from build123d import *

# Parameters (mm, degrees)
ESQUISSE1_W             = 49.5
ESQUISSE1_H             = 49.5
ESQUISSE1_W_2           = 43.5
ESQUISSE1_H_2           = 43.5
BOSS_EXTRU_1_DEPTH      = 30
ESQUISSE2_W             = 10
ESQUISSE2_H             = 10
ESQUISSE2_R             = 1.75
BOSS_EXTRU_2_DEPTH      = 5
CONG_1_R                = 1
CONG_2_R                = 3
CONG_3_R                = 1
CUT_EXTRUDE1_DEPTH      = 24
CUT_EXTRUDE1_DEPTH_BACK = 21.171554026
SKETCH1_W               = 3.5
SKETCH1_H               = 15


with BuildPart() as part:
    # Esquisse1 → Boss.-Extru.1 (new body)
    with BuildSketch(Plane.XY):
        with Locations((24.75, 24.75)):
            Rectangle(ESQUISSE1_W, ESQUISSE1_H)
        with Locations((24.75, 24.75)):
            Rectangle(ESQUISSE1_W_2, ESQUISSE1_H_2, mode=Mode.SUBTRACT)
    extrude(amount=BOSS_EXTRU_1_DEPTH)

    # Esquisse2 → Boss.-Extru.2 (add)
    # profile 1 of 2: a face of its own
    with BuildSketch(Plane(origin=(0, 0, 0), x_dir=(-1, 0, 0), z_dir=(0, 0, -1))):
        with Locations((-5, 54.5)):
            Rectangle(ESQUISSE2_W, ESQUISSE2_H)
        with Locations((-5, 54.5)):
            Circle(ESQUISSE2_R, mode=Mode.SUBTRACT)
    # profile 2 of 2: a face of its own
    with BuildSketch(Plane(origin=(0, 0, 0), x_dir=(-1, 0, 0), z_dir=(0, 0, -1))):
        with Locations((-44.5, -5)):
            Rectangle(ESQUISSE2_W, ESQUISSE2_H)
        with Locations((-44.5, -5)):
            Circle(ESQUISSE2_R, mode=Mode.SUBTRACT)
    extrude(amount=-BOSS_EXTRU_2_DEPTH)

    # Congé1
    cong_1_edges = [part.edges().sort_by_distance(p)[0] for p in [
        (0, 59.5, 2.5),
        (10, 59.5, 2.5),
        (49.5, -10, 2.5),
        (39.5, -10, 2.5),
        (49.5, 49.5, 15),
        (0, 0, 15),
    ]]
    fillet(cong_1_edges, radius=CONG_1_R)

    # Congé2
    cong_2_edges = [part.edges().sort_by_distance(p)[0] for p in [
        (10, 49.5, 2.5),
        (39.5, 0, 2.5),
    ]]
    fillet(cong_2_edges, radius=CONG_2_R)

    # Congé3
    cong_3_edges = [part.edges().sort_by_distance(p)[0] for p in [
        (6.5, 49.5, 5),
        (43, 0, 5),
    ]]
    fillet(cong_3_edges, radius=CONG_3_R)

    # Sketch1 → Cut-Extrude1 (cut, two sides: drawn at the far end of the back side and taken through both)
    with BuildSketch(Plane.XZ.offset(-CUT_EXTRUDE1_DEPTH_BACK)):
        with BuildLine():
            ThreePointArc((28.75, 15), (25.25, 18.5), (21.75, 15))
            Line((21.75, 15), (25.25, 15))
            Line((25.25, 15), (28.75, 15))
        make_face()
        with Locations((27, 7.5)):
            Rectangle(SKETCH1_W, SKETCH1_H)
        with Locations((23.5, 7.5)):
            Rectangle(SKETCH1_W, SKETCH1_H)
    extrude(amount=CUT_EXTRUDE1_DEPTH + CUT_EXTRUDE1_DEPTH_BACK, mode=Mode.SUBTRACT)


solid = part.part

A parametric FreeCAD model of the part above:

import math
import FreeCAD as App
import Part
import Sketcher

V = App.Vector


def edges_at(feature, points):
    """Names of the edges that pass closest to the given points."""
    edges = feature.Shape.Edges
    near = lambda p: min(range(len(edges)), key=lambda i: edges[i].distToShape(Part.Vertex(*p))[0])
    return sorted({f"Edge{near(p) + 1}" for p in points})


def add_polygon(sketch, points):
    """Adds a closed chain of lines whose ends are joined by coincident constraints."""
    first, n = sketch.GeometryCount, len(points)
    for a, b in zip(points, points[1:] + points[:1]):
        sketch.addGeometry(Part.LineSegment(App.Vector(*a, 0), App.Vector(*b, 0)), False)
    for i in range(n):
        sketch.addConstraint(Sketcher.Constraint("Coincident", first + i, 2, first + (i + 1) % n, 1))

doc = App.newDocument("Part")
params = doc.addObject("Spreadsheet::Sheet", "Params")
for row, (alias, value) in enumerate([
    ("sketch1_width", "49.5 mm"),
    ("sketch1_width2", "43.5 mm"),
    ("pad1_length", "30 mm"),
    ("sketch2_diameter", "3.5 mm"),
    ("sketch2_width", "10 mm"),
    ("pad2_length", "5 mm"),
    ("fillet_radius", "1 mm"),
    ("fillet2_radius", "3 mm"),
    ("fillet3_radius", "1 mm"),
    ("sketch3_radius", "3.5 mm"),
    ("sketch3_height", "15 mm"),
    ("pocket1_length", "24 mm"),
    ("pocket1_length2", "21.171554 mm"),
], start=1):
    params.set(f"A{row}", alias)
    params.set(f"B{row}", "=" + value)
    params.setAlias(f"B{row}", alias)

body = doc.addObject("PartDesign::Body", "Body")

sketch1 = body.newObject("Sketcher::SketchObject", "Sketch")
sketch1.AttachmentSupport = (doc.getObject("XY_Plane"), [""])
sketch1.MapMode = "FlatFace"
add_polygon(sketch1, [(0, 50), (0, 0), (50, 0), (50, 50)])
add_polygon(sketch1, [(46, 3), (3, 3), (3, 46), (46, 46)])
sketch1.addConstraint(Sketcher.Constraint("Vertical", 0))
sketch1.addConstraint(Sketcher.Constraint("Horizontal", 1))
sketch1.addConstraint(Sketcher.Constraint("Vertical", 2))
sketch1.addConstraint(Sketcher.Constraint("Horizontal", 3))
sketch1.addConstraint(Sketcher.Constraint("Horizontal", 4))
sketch1.addConstraint(Sketcher.Constraint("Vertical", 5))
sketch1.addConstraint(Sketcher.Constraint("Horizontal", 6))
sketch1.addConstraint(Sketcher.Constraint("Vertical", 7))
sketch1.addConstraint(Sketcher.Constraint("Coincident", 0, 2, -1, 1))
sketch1.addConstraint(Sketcher.Constraint("Equal", 3, 0))
sketch1.addConstraint(Sketcher.Constraint("Equal", 6, 5))
sketch1.addConstraint(Sketcher.Constraint("DistanceX", 1, 1, 1, 2, 49.5))
sketch1.addConstraint(Sketcher.Constraint("DistanceX", 4, 2, 4, 1, 43.5))
sketch1.addConstraint(Sketcher.Constraint("DistanceX", -1, 1, 4, 2, 3.0))
sketch1.addConstraint(Sketcher.Constraint("DistanceY", -1, 1, 4, 2, 3.0))
sketch1.setExpression("Constraints[19]", "Params.sketch1_width")
sketch1.setExpression("Constraints[20]", "Params.sketch1_width2")
pad1 = body.newObject("PartDesign::Pad", "Pad")
pad1.Profile = sketch1
pad1.setExpression("Length", "Params.pad1_length")

sketch2 = body.newObject("Sketcher::SketchObject", "Sketch001")
sketch2.AttachmentSupport = (doc.getObject("XY_Plane"), [""])
sketch2.MapMode = "FlatFace"
add_polygon(sketch2, [(10, 59.5), (10, 49.5), (0, 49.5), (0, 59.5)])
sketch2.addGeometry(Part.Circle(V(5, 54.5, 0), V(0, 0, 1), 1.8), False)
add_polygon(sketch2, [(49.5, 0), (49.5, -10), (39.5, -10), (39.5, 0)])
sketch2.addGeometry(Part.Circle(V(44.5, -5, 0), V(0, 0, 1), 1.8), False)
sketch2.addConstraint(Sketcher.Constraint("Vertical", 0))
sketch2.addConstraint(Sketcher.Constraint("Horizontal", 1))
sketch2.addConstraint(Sketcher.Constraint("Vertical", 2))
sketch2.addConstraint(Sketcher.Constraint("Horizontal", 3))
sketch2.addConstraint(Sketcher.Constraint("Vertical", 5))
sketch2.addConstraint(Sketcher.Constraint("Horizontal", 6))
sketch2.addConstraint(Sketcher.Constraint("Vertical", 7))
sketch2.addConstraint(Sketcher.Constraint("Horizontal", 8))
sketch2.addConstraint(Sketcher.Constraint("Equal", 4, 9))
sketch2.addConstraint(Sketcher.Constraint("PointOnObject", 1, 2, -2))
sketch2.addConstraint(Sketcher.Constraint("PointOnObject", 7, 2, -1))
sketch2.addConstraint(Sketcher.Constraint("Equal", 3, 6))
sketch2.addConstraint(Sketcher.Constraint("Equal", 8, 0))
sketch2.addConstraint(Sketcher.Constraint("Equal", 2, 5))
sketch2.addConstraint(Sketcher.Constraint("Diameter", 4, 3.5))
sketch2.addConstraint(Sketcher.Constraint("DistanceX", 1, 2, 1, 1, 10.0))
sketch2.addConstraint(Sketcher.Constraint("DistanceX", -1, 1, 4, 3, 5.0))
sketch2.addConstraint(Sketcher.Constraint("DistanceY", 9, 3, -1, 1, 5.0))
sketch2.addConstraint(Sketcher.Constraint("DistanceY", 0, 2, 4, 3, 5.0))
sketch2.addConstraint(Sketcher.Constraint("DistanceX", 9, 3, 5, 2, 5.0))
sketch2.addConstraint(Sketcher.Constraint("DistanceY", -1, 1, 4, 3, 54.5))
sketch2.addConstraint(Sketcher.Constraint("DistanceX", -1, 1, 9, 3, 44.5))
sketch2.setExpression("Constraints[22]", "Params.sketch2_diameter")
sketch2.setExpression("Constraints[23]", "Params.sketch2_width")
pad2 = body.newObject("PartDesign::Pad", "Pad001")
pad2.Profile = sketch2
pad2.setExpression("Length", "Params.pad2_length")
doc.recompute()

fillet = body.newObject("PartDesign::Fillet", "Fillet")
fillet.Base = (pad2, edges_at(pad2, [
    (0, 59.5, 2.5),
    (10, 59.5, 2.5),
    (49.5, -10, 2.5),
    (39.5, -10, 2.5),
    (49.5, 49.5, 15),
    (0, 0, 15),
]))
fillet.setExpression("Radius", "Params.fillet_radius")
doc.recompute()

fillet2 = body.newObject("PartDesign::Fillet", "Fillet001")
fillet2.Base = (fillet, edges_at(fillet, [(10, 49.5, 2.5), (39.5, 0, 2.5)]))
fillet2.setExpression("Radius", "Params.fillet2_radius")
doc.recompute()

fillet3 = body.newObject("PartDesign::Fillet", "Fillet002")
fillet3.Base = (fillet2, edges_at(fillet2, [(6.5, 49.5, 5), (43, 0, 5)]))
fillet3.setExpression("Radius", "Params.fillet3_radius")

sketch3 = body.newObject("Sketcher::SketchObject", "Sketch002")
sketch3.AttachmentSupport = (doc.getObject("XZ_Plane"), [""])
sketch3.MapMode = "FlatFace"
sketch3.addGeometry(Part.ArcOfCircle(Part.Circle(V(25.2, 15, 0), V(0, 0, 1), 3.5), math.radians(0), math.radians(180)), False)
sketch3.addGeometry(Part.LineSegment(V(21.8, 15, 0), V(21.8, 0, 0)), False)
sketch3.addGeometry(Part.LineSegment(V(21.8, 0, 0), V(28.8, 0, 0)), False)
sketch3.addGeometry(Part.LineSegment(V(28.8, 0, 0), V(28.8, 15, 0)), False)
sketch3.addConstraint(Sketcher.Constraint("Tangent", 0, 2, 1, 1))
sketch3.addConstraint(Sketcher.Constraint("Coincident", 1, 2, 2, 1))
sketch3.addConstraint(Sketcher.Constraint("Coincident", 2, 2, 3, 1))
sketch3.addConstraint(Sketcher.Constraint("Tangent", 3, 2, 0, 1))
sketch3.addConstraint(Sketcher.Constraint("Vertical", 1))
sketch3.addConstraint(Sketcher.Constraint("Horizontal", 2))
sketch3.addConstraint(Sketcher.Constraint("Vertical", 3))
sketch3.addConstraint(Sketcher.Constraint("PointOnObject", 1, 2, -1))
sketch3.addConstraint(Sketcher.Constraint("Radius", 0, 3.5))
sketch3.addConstraint(Sketcher.Constraint("DistanceY", 1, 2, 1, 1, 15.0))
sketch3.addConstraint(Sketcher.Constraint("DistanceX", -1, 1, 0, 3, 25.25))
sketch3.setExpression("Constraints[8]", "Params.sketch3_radius")
sketch3.setExpression("Constraints[9]", "Params.sketch3_height")
pocket1 = body.newObject("PartDesign::Pocket", "Pocket")
pocket1.Profile = sketch3
pocket1.Type = "TwoLengths"
pocket1.setExpression("Length", "Params.pocket1_length")
pocket1.setExpression("Length2", "Params.pocket1_length2")
pocket1.Reversed = True

doc.recompute()
